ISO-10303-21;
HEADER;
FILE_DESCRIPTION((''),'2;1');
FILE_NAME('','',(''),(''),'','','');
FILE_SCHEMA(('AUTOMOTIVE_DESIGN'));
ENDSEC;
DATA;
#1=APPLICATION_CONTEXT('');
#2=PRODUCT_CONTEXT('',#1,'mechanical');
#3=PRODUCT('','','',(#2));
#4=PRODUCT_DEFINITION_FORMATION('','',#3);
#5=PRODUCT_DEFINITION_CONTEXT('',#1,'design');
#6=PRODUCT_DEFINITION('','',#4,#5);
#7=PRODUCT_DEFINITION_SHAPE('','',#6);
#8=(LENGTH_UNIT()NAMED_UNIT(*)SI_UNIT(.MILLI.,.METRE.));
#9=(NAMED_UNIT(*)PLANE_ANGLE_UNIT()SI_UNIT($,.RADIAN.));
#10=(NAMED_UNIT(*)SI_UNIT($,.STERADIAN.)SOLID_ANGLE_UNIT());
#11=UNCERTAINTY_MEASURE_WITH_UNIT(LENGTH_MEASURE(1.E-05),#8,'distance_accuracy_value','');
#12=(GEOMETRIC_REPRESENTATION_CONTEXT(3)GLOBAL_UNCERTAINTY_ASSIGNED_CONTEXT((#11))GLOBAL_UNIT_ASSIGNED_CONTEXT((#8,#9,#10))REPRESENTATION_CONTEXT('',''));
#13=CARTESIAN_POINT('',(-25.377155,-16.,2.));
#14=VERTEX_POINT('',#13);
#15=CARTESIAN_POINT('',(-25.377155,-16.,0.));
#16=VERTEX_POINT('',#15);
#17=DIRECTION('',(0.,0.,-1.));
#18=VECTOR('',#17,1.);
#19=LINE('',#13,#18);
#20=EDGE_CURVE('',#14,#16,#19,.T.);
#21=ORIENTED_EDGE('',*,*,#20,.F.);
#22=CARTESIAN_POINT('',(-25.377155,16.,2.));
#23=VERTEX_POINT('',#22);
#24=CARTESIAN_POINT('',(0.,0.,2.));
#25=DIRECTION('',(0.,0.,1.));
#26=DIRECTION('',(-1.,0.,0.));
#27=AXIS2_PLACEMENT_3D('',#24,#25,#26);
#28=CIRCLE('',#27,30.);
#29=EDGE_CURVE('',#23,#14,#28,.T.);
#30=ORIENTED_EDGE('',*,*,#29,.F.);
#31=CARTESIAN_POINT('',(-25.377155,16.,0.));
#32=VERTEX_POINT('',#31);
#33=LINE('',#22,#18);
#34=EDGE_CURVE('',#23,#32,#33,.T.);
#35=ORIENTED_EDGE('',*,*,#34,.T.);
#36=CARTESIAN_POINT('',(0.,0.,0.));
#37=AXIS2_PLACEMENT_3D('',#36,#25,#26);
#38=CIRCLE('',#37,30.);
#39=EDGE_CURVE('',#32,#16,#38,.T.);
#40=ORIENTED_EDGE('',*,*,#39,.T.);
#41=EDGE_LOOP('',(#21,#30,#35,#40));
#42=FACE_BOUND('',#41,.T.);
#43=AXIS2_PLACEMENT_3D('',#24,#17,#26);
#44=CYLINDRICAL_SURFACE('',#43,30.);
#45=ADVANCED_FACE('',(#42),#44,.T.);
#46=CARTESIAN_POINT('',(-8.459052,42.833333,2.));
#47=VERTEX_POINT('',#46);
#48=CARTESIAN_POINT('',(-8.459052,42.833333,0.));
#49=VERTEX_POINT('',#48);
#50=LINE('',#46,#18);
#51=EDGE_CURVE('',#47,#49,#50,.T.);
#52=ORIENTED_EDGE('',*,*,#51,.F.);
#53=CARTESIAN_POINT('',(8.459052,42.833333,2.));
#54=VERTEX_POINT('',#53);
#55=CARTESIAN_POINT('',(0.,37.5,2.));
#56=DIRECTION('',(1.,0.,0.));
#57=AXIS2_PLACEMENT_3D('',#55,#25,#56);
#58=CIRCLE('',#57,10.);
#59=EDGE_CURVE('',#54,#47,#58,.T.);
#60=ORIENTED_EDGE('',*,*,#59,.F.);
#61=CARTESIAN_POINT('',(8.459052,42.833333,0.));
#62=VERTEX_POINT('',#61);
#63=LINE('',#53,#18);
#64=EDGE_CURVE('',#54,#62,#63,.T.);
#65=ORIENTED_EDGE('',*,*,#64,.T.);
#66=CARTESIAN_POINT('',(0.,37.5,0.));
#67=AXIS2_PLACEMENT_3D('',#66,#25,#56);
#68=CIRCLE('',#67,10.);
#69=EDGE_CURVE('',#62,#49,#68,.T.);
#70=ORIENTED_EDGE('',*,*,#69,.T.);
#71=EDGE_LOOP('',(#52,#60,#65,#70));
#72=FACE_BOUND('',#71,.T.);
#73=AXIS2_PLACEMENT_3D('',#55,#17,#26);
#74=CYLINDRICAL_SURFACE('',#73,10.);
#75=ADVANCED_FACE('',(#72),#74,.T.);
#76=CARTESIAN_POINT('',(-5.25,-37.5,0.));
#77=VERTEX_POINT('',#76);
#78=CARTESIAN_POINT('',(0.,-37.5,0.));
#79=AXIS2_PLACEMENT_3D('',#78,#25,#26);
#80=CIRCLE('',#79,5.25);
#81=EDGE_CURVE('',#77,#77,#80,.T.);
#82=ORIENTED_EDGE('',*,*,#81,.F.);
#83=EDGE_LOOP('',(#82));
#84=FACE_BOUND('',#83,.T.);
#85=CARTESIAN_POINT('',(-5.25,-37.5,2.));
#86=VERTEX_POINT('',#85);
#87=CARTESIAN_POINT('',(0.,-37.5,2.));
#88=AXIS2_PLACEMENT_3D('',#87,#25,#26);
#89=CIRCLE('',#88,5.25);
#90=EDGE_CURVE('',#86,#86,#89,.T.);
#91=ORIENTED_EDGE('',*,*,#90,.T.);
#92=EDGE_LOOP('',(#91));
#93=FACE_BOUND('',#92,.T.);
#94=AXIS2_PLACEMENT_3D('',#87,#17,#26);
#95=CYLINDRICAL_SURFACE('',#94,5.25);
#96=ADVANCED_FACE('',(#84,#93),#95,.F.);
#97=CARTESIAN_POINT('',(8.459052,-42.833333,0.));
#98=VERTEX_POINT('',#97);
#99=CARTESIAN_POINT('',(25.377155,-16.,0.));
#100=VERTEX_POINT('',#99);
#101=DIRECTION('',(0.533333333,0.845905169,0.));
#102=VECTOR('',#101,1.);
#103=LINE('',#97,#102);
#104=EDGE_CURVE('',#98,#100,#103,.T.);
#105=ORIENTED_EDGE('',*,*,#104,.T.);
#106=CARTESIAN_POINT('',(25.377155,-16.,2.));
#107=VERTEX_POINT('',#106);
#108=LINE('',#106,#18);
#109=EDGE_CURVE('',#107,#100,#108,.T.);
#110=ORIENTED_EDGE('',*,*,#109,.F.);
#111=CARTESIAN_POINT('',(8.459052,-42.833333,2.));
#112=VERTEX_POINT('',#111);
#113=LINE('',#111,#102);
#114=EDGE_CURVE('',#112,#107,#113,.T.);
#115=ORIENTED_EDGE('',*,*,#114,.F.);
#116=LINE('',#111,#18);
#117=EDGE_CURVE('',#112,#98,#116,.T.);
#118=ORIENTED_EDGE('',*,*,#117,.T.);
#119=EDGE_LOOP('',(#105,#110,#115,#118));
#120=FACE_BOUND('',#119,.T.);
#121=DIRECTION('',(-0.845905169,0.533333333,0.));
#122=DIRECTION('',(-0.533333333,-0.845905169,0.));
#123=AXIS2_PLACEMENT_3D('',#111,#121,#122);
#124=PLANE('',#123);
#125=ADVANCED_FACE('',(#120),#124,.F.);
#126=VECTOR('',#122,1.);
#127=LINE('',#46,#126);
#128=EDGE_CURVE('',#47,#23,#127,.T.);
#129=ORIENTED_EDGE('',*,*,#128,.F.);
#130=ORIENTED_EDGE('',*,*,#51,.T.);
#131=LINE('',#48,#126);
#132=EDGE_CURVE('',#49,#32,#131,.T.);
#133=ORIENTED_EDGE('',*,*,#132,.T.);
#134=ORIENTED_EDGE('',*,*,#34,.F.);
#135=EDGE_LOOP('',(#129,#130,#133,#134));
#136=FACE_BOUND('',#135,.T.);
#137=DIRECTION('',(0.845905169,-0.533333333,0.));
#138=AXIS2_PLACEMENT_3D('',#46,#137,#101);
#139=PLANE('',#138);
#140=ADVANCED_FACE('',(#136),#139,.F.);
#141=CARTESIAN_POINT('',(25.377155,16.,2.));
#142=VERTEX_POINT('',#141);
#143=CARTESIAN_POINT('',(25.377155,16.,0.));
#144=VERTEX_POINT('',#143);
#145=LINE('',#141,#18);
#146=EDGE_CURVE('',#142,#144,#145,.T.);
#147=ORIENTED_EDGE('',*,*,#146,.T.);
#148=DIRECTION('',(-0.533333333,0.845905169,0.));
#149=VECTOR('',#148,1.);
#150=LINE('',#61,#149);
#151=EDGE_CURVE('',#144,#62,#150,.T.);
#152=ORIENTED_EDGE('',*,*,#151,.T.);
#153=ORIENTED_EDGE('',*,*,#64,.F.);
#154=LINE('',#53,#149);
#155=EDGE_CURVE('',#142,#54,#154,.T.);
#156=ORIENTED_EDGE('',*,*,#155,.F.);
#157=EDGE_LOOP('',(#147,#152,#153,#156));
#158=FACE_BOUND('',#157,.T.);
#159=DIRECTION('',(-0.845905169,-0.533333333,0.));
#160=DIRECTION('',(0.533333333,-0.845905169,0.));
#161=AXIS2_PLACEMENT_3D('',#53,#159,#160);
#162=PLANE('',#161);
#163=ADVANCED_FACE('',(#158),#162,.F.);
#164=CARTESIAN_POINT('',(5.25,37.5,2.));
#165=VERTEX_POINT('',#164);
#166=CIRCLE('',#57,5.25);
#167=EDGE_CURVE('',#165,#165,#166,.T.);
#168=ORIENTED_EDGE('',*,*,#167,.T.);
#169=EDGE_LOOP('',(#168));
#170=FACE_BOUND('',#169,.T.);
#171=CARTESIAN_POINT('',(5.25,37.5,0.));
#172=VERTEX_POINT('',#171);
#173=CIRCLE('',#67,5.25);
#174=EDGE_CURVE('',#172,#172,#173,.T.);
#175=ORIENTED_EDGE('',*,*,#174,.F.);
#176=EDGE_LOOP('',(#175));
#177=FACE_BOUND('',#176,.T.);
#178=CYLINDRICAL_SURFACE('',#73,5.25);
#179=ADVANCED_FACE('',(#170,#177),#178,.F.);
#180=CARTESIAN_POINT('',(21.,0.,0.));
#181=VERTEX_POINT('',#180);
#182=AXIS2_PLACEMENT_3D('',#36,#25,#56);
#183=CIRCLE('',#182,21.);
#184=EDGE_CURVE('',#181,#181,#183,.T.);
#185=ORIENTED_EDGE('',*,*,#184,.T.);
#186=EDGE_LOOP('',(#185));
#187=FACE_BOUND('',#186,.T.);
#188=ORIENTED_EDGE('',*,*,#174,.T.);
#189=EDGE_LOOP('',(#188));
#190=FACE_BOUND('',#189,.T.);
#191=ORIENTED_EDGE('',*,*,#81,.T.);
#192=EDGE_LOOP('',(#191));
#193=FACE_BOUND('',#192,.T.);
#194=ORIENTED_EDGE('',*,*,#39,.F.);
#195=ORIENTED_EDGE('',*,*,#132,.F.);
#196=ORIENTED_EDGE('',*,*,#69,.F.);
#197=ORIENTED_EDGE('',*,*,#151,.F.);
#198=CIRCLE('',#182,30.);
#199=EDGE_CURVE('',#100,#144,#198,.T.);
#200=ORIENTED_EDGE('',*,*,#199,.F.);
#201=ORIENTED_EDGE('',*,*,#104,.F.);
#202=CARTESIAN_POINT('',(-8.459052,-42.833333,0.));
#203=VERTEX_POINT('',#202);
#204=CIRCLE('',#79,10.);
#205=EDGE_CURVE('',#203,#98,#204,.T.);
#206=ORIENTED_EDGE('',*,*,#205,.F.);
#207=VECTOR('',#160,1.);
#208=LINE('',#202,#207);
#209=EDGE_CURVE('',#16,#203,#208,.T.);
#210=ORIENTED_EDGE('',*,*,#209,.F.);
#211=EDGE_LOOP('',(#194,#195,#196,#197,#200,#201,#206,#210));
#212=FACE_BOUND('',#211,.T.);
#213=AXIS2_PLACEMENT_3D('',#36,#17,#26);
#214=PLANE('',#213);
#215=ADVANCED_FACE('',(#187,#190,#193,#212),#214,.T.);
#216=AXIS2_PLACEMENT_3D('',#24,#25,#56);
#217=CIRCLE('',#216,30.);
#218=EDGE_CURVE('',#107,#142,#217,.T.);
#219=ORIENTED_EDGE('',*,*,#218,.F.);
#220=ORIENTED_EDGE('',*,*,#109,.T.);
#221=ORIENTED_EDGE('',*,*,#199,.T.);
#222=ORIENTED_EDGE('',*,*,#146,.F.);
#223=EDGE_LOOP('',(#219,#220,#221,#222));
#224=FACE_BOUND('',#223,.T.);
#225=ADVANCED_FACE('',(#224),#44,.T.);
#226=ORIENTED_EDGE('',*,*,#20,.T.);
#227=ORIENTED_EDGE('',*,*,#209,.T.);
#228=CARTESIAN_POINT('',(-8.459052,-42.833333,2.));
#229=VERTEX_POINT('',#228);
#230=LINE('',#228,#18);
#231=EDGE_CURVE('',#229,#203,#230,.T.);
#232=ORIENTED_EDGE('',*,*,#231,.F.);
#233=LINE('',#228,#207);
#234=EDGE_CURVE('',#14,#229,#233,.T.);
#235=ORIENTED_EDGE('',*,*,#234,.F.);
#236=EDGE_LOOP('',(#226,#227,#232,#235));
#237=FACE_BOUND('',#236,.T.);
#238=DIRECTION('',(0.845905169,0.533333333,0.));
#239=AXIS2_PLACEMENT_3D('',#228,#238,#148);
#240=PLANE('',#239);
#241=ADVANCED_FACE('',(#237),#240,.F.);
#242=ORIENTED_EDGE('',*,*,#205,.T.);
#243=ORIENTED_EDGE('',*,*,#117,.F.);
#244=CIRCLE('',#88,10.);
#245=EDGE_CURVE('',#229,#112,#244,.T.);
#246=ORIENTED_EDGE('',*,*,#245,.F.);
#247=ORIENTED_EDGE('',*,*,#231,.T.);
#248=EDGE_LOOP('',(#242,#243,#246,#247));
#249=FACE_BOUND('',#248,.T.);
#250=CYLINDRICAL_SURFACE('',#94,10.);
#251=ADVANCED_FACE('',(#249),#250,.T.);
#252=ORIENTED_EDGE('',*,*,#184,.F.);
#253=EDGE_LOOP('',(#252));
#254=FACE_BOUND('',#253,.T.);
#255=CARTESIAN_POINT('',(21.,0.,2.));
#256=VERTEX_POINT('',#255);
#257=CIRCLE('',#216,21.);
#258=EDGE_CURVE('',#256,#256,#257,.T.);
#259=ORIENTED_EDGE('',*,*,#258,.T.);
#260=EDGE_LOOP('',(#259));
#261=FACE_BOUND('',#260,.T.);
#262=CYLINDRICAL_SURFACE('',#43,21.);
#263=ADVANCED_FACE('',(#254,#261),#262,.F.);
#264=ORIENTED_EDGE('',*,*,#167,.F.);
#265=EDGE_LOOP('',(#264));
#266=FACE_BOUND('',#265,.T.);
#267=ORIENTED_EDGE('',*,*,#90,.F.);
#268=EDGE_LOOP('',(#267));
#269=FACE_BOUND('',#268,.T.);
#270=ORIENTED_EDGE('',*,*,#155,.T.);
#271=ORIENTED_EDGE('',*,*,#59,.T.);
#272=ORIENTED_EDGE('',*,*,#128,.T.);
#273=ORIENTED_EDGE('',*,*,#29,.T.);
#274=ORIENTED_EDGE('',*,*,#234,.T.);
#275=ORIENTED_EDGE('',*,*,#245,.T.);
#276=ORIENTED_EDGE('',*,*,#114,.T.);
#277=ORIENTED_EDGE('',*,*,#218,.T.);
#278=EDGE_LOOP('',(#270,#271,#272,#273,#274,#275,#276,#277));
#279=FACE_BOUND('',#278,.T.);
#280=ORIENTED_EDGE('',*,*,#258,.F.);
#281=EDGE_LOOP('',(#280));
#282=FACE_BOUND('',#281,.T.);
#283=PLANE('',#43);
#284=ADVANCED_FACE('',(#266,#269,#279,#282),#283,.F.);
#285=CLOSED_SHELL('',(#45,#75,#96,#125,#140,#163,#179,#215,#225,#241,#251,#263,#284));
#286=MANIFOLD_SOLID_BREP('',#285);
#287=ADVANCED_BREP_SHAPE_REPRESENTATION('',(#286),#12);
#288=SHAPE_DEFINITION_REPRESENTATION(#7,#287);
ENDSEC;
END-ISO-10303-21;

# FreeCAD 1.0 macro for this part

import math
import FreeCAD as App
import Part
import Sketcher
from FreeCAD import Vector

doc = App.newDocument("Part")
body = doc.addObject("PartDesign::Body", "Body")

sketch1 = body.newObject("Sketcher::SketchObject", "Sketch")
sketch1.AttachmentSupport = (doc.getObject("XY_Plane"), [""])
sketch1.MapMode = "FlatFace"
sketch1.addGeometry(Part.LineSegment(Vector(25, 16, 0), Vector(8, 43, 0)), False)
sketch1.addGeometry(Part.ArcOfCircle(Part.Circle(Vector(0, 38, 0), Vector(0, 0, 1), 10), math.radians(32), math.radians(148)), False)
sketch1.addGeometry(Part.LineSegment(Vector(-8, 43, 0), Vector(-25, 16, 0)), False)
sketch1.addGeometry(Part.ArcOfCircle(Part.Circle(Vector(0, 0, 0), Vector(0, 0, 1), 30), math.radians(148), math.radians(212)), False)
sketch1.addGeometry(Part.LineSegment(Vector(-25, -16, 0), Vector(-8, -43, 0)), False)
sketch1.addGeometry(Part.ArcOfCircle(Part.Circle(Vector(0, -38, 0), Vector(0, 0, 1), 10), math.radians(-148), math.radians(-32)), False)
sketch1.addGeometry(Part.LineSegment(Vector(8, -43, 0), Vector(25, -16, 0)), False)
sketch1.addGeometry(Part.ArcOfCircle(Part.Circle(Vector(0, 0, 0), Vector(0, 0, 1), 30), math.radians(-32), math.radians(32)), False)
sketch1.addGeometry(Part.Circle(Vector(0, -38, 0), Vector(0, 0, 1), 5), False)
sketch1.addGeometry(Part.Circle(Vector(0, 0, 0), Vector(0, 0, 1), 21), False)
sketch1.addGeometry(Part.Circle(Vector(0, 38, 0), Vector(0, 0, 1), 5), False)
sketch1.addConstraint(Sketcher.Constraint("Tangent", 0, 2, 1, 1))
sketch1.addConstraint(Sketcher.Constraint("Tangent", 1, 2, 2, 1))
sketch1.addConstraint(Sketcher.Constraint("Tangent", 2, 2, 3, 1))
sketch1.addConstraint(Sketcher.Constraint("Tangent", 3, 2, 4, 1))
sketch1.addConstraint(Sketcher.Constraint("Tangent", 4, 2, 5, 1))
sketch1.addConstraint(Sketcher.Constraint("Tangent", 5, 2, 6, 1))
sketch1.addConstraint(Sketcher.Constraint("Tangent", 6, 2, 7, 1))
sketch1.addConstraint(Sketcher.Constraint("Tangent", 7, 2, 0, 1))
sketch1.addConstraint(Sketcher.Constraint("Coincident", 3, 3, -1, 1))
sketch1.addConstraint(Sketcher.Constraint("Coincident", 7, 3, -1, 1))
sketch1.addConstraint(Sketcher.Constraint("Coincident", 9, 3, -1, 1))
sketch1.addConstraint(Sketcher.Constraint("Coincident", 8, 3, 5, 3))
sketch1.addConstraint(Sketcher.Constraint("Coincident", 10, 3, 1, 3))
sketch1.addConstraint(Sketcher.Constraint("Equal", 1, 5))
sketch1.addConstraint(Sketcher.Constraint("Equal", 3, 7))
sketch1.addConstraint(Sketcher.Constraint("Equal", 8, 10))
sketch1.addConstraint(Sketcher.Constraint("Symmetric", 1, 3, 5, 3, -1, 1))
sketch1.addConstraint(Sketcher.Constraint("PointOnObject", 1, 3, -2))
sketch1.addConstraint(Sketcher.Constraint("Diameter", 9, 42.0))
sketch1.addConstraint(Sketcher.Constraint("Radius", 1, 10.0))
sketch1.addConstraint(Sketcher.Constraint("Radius", 3, 30.0))
sketch1.addConstraint(Sketcher.Constraint("Diameter", 8, 10.5))
sketch1.addConstraint(Sketcher.Constraint("DistanceY", -1, 1, 2, 2, 16.0))
pad1 = body.newObject("PartDesign::Pad", "Pad")
pad1.Profile = sketch1
pad1.Length = 2

doc.recompute()
